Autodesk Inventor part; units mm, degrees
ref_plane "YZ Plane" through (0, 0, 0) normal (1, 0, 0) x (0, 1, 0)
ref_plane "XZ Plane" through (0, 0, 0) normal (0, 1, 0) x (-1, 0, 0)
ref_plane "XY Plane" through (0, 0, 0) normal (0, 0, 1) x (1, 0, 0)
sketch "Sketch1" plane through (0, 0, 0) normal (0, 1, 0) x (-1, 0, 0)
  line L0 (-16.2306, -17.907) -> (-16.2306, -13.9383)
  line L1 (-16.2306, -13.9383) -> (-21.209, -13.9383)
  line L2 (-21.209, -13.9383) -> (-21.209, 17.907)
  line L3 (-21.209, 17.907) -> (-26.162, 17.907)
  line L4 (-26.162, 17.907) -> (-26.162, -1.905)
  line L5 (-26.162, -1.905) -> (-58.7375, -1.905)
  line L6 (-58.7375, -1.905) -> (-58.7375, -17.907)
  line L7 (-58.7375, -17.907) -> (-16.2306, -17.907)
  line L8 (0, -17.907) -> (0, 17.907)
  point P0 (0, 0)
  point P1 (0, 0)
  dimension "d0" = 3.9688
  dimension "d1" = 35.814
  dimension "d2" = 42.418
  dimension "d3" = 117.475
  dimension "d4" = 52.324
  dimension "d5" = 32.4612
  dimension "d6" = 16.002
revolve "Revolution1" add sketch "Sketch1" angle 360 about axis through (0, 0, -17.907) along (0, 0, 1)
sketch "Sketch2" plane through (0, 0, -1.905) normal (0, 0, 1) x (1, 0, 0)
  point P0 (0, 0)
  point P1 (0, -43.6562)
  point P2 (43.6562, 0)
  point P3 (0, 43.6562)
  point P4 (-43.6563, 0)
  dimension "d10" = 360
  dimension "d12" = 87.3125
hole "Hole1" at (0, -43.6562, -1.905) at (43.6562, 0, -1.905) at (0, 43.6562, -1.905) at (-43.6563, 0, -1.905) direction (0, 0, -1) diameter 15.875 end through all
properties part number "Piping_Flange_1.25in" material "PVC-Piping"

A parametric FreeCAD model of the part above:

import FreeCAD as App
import Part
import Sketcher

V = App.Vector
Q = App.Units.Quantity

doc = App.newDocument("Part")
params = doc.addObject("Spreadsheet::Sheet", "Params")
for row, (alias, value) in enumerate([
    ("sketch1_height", "0.63 in"),
    ("sketch1_height2", "0.156248 in"),
    ("sketch1_width", "0.196 in"),
    ("sketch1_width2", "0.195 in"),
    ("revolution_angle", "360 deg"),
    ("sketch2_diameter", "0.625 in"),
    ("hole_diameter", "0.625 in"),
], start=1):
    params.set(f"A{row}", alias)
    params.set(f"B{row}", "=" + value)
    params.setAlias(f"B{row}", alias)

body = doc.addObject("PartDesign::Body", "Body")

sketch1 = body.newObject("Sketcher::SketchObject", "Sketch")
sketch1.AttachmentSupport = (doc.getObject("XZ_Plane"), [""])
sketch1.MapMode = "FlatFace"
sketch1.addGeometry([
    Part.LineSegment(V(58.7375, -17.907, 0), V(16.2306, -17.907, 0)),
    Part.LineSegment(V(16.2306, -17.907, 0), V(16.2306, -13.9383, 0)),
    Part.LineSegment(V(16.2306, -13.9383, 0), V(21.209, -13.9383, 0)),
    Part.LineSegment(V(21.209, -13.9383, 0), V(21.209, 17.907, 0)),
    Part.LineSegment(V(21.209, 17.907, 0), V(26.162, 17.907, 0)),
    Part.LineSegment(V(26.162, 17.907, 0), V(26.162, -1.905, 0)),
    Part.LineSegment(V(26.162, -1.905, 0), V(58.7375, -1.905, 0)),
    Part.LineSegment(V(58.7375, -1.905, 0), V(58.7375, -17.907, 0)),
], False)
sketch1.addConstraint([
    Sketcher.Constraint("Coincident", 0, 2, 1, 1),
    Sketcher.Constraint("Coincident", 1, 2, 2, 1),
    Sketcher.Constraint("Coincident", 2, 2, 3, 1),
    Sketcher.Constraint("Coincident", 3, 2, 4, 1),
    Sketcher.Constraint("Coincident", 4, 2, 5, 1),
    Sketcher.Constraint("Coincident", 5, 2, 6, 1),
    Sketcher.Constraint("Coincident", 6, 2, 7, 1),
    Sketcher.Constraint("Coincident", 7, 2, 0, 1),
    Sketcher.Constraint("Horizontal", 0),
    Sketcher.Constraint("Vertical", 1),
    Sketcher.Constraint("Horizontal", 2),
    Sketcher.Constraint("Vertical", 3),
    Sketcher.Constraint("Horizontal", 4),
    Sketcher.Constraint("Vertical", 5),
    Sketcher.Constraint("Horizontal", 6),
    Sketcher.Constraint("Vertical", 7),
    Sketcher.Constraint("DistanceY", 7, 2, 7, 1, Q("0.63 in")),
    Sketcher.Constraint("DistanceY", 1, 1, 1, 2, Q("0.156248 in")),
    Sketcher.Constraint("DistanceY", 0, 2, 3, 2, Q("1.41 in")),
    Sketcher.Constraint("DistanceX", 2, 1, 2, 2, Q("0.196 in")),
    Sketcher.Constraint("DistanceX", 4, 1, 4, 2, Q("0.195 in")),
    Sketcher.Constraint("DistanceX", -1, 1, 4, 2, Q("1.03 in")),
    Sketcher.Constraint("DistanceX", 0, 2, 0, 1, Q("1.6735 in")),
    Sketcher.Constraint("DistanceY", 0, 2, -1, 1, Q("0.705 in")),
])
sketch1.setExpression("Constraints[16]", "Params.sketch1_height")
sketch1.setExpression("Constraints[17]", "Params.sketch1_height2")
sketch1.setExpression("Constraints[19]", "Params.sketch1_width")
sketch1.setExpression("Constraints[20]", "Params.sketch1_width2")
revolution = body.newObject("PartDesign::Revolution", "Revolution")
revolution.Profile = sketch1
revolution.ReferenceAxis = (sketch1, ["V_Axis"])
revolution.setExpression("Angle", "Params.revolution_angle")

sketch2 = body.newObject("Sketcher::SketchObject", "Sketch001")
sketch2.AttachmentSupport = (doc.getObject("XY_Plane"), [""])
sketch2.MapMode = "FlatFace"
sketch2.AttachmentOffset = App.Placement(V(0, 0, -0.075 * 25.4), App.Rotation())
sketch2.addGeometry([
    Part.Circle(V(0, -43.6562, 0), V(0, 0, 1), 7.9375),
    Part.Circle(V(43.6562, 0, 0), V(0, 0, 1), 7.9375),
    Part.Circle(V(0, 43.6562, 0), V(0, 0, 1), 7.9375),
    Part.Circle(V(-43.6563, 0, 0), V(0, 0, 1), 7.9375),
], False)
sketch2.addConstraint([
    Sketcher.Constraint("Equal", 0, 1),
    Sketcher.Constraint("Equal", 1, 2),
    Sketcher.Constraint("Equal", 2, 3),
    Sketcher.Constraint("Symmetric", 0, 3, 2, 3, -1, 1),
    Sketcher.Constraint("Symmetric", 1, 3, 3, 3, -1, 1),
    Sketcher.Constraint("PointOnObject", 0, 3, -2),
    Sketcher.Constraint("PointOnObject", 1, 3, -1),
    Sketcher.Constraint("Diameter", 0, Q("0.625 in")),
    Sketcher.Constraint("DistanceY", 0, 3, -1, 1, Q("1.718748 in")),
    Sketcher.Constraint("DistanceX", -1, 1, 1, 3, Q("1.718748 in")),
])
sketch2.setExpression("Constraints[7]", "Params.sketch2_diameter")
doc.recompute()
hole = body.newObject("PartDesign::Hole", "Hole")
hole.Profile = sketch2
hole.ThreadType = "None"
hole.setExpression("Diameter", "Params.hole_diameter")
hole.DepthType = "ThroughAll"

doc.recompute()
